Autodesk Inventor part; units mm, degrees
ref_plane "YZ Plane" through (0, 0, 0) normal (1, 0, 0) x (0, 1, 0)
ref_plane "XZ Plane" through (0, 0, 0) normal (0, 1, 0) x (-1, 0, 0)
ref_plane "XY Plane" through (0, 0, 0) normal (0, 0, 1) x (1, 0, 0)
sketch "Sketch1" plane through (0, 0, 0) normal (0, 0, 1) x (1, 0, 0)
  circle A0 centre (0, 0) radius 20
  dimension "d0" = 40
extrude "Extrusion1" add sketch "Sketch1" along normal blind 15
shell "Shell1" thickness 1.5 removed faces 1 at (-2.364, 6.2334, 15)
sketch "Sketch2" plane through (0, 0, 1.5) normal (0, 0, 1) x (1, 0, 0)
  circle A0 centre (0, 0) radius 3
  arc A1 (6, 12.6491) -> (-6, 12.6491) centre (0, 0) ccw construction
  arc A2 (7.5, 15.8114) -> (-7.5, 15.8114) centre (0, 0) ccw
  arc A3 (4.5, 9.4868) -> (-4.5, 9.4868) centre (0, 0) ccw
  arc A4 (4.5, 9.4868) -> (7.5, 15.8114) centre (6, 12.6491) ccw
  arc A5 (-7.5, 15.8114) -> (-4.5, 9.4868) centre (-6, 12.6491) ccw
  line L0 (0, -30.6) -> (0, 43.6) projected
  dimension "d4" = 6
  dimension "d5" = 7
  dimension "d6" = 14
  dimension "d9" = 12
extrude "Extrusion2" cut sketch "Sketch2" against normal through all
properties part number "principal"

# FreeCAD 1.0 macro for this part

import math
import FreeCAD as App
import Part
import Sketcher
from FreeCAD import Vector


def faces_at(feature, points):
    """Names of the faces that lie closest to the given points."""
    faces = feature.Shape.Faces
    near = lambda p: min(range(len(faces)), key=lambda i: faces[i].distToShape(Part.Vertex(*p))[0])
    return sorted({f"Face{near(p) + 1}" for p in points})

doc = App.newDocument("Part")
body = doc.addObject("PartDesign::Body", "Body")

# Sketch on XY plane
sketch1 = body.newObject("Sketcher::SketchObject", "Sketch")
sketch1.AttachmentSupport = (doc.getObject("XY_Plane"), [""])
sketch1.MapMode = "FlatFace"
sketch1.addGeometry(Part.Circle(Vector(0, 0, 0), Vector(0, 0, 1), 20), False)
sketch1.addConstraint([
    Sketcher.Constraint("Coincident", 0, 3, -1, 1),
    Sketcher.Constraint("Diameter", 0, 40.0),
])
pad1 = body.newObject("PartDesign::Pad", "Pad")
pad1.Profile = sketch1
pad1.Length = 15
doc.recompute()

thickness = body.newObject("PartDesign::Thickness", "Thickness")
thickness.Base = (pad1, faces_at(pad1, [(-2.364, 6.233, 15)]))
thickness.Value = 1.5
thickness.Reversed = True
thickness.Join = "Intersection"

# Sketch on XY plane
sketch2 = body.newObject("Sketcher::SketchObject", "Sketch001")
sketch2.AttachmentSupport = (doc.getObject("XY_Plane"), [""])
sketch2.MapMode = "FlatFace"
sketch2.AttachmentOffset = App.Placement(Vector(0, 0, 1.5), App.Rotation())
sketch2.addGeometry([
    Part.Circle(Vector(0, 0, 0), Vector(0, 0, 1), 3),  # 0
    Part.ArcOfCircle(Part.Circle(Vector(0, 0, 0), Vector(0, 0, 1), 10.5), math.radians(65), math.radians(115)),  # 1
    Part.ArcOfCircle(Part.Circle(Vector(6, 12.6, 0), Vector(0, 0, 1), 3.5), math.radians(-115), math.radians(65)),  # 2
    Part.ArcOfCircle(Part.Circle(Vector(0, 0, 0), Vector(0, 0, 1), 17.5), math.radians(65), math.radians(115)),  # 3
    Part.ArcOfCircle(Part.Circle(Vector(-6, 12.6, 0), Vector(0, 0, 1), 3.5), math.radians(115), math.radians(295)),  # 4
], False)
sketch2.addConstraint([
    Sketcher.Constraint("Tangent", 1, 1, 2, 1),
    Sketcher.Constraint("Tangent", 2, 2, 3, 1),
    Sketcher.Constraint("Tangent", 3, 2, 4, 1),
    Sketcher.Constraint("Tangent", 4, 2, 1, 2),
    Sketcher.Constraint("Coincident", 0, 3, -1, 1),
    Sketcher.Constraint("Coincident", 1, 3, -1, 1),
    Sketcher.Constraint("Coincident", 3, 3, -1, 1),
    Sketcher.Constraint("Horizontal", 2, 3, 4, 3),
    Sketcher.Constraint("Diameter", 0, 6.0),
    Sketcher.Constraint("Radius", 2, 3.5),
    Sketcher.Constraint("DistanceX", -1, 1, 2, 3, 6.0),
    Sketcher.Constraint("Radius", 1, 10.5),
])
pocket1 = body.newObject("PartDesign::Pocket", "Pocket")
pocket1.Profile = sketch2
pocket1.Type = "ThroughAll"

doc.recompute()
